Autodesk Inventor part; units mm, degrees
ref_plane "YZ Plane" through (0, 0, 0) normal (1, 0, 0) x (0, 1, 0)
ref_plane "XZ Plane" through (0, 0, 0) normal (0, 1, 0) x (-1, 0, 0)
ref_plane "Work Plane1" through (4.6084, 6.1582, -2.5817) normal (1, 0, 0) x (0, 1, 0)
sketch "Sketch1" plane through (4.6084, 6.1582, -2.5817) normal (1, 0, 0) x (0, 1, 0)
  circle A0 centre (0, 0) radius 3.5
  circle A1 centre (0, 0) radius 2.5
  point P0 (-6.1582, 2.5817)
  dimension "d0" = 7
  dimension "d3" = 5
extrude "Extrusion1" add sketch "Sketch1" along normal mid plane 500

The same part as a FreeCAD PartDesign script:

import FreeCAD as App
import Part
import Sketcher
from FreeCAD import Vector
Q = App.Units.Quantity

doc = App.newDocument("Part")
body = doc.addObject("PartDesign::Body", "Body")

sketch1 = body.newObject("Sketcher::SketchObject", "Sketch")
sketch1.AttachmentSupport = (doc.getObject("YZ_Plane"), [""])
sketch1.MapMode = "FlatFace"
sketch1.AttachmentOffset = App.Placement(Vector(0, 0, 4.6084), App.Rotation())
sketch1.addGeometry(Part.Circle(Vector(6.2, -2.6, 0), Vector(0, 0, 1), 3.5), False)
sketch1.addGeometry(Part.Circle(Vector(6.2, -2.6, 0), Vector(0, 0, 1), 2.5), False)
sketch1.addConstraint(Sketcher.Constraint("Coincident", 1, 3, 0, 3))
sketch1.addConstraint(Sketcher.Constraint("Diameter", 0, Q("7 mm")))
sketch1.addConstraint(Sketcher.Constraint("Diameter", 1, Q("5 mm")))
sketch1.addConstraint(Sketcher.Constraint("DistanceX", -1, 1, 0, 3, Q("6.1582 mm")))
sketch1.addConstraint(Sketcher.Constraint("DistanceY", 0, 3, -1, 1, Q("2.5817 mm")))
pad1 = body.newObject("PartDesign::Pad", "Pad")
pad1.Profile = sketch1
pad1.Length = 500
pad1.Midplane = True

doc.recompute()
